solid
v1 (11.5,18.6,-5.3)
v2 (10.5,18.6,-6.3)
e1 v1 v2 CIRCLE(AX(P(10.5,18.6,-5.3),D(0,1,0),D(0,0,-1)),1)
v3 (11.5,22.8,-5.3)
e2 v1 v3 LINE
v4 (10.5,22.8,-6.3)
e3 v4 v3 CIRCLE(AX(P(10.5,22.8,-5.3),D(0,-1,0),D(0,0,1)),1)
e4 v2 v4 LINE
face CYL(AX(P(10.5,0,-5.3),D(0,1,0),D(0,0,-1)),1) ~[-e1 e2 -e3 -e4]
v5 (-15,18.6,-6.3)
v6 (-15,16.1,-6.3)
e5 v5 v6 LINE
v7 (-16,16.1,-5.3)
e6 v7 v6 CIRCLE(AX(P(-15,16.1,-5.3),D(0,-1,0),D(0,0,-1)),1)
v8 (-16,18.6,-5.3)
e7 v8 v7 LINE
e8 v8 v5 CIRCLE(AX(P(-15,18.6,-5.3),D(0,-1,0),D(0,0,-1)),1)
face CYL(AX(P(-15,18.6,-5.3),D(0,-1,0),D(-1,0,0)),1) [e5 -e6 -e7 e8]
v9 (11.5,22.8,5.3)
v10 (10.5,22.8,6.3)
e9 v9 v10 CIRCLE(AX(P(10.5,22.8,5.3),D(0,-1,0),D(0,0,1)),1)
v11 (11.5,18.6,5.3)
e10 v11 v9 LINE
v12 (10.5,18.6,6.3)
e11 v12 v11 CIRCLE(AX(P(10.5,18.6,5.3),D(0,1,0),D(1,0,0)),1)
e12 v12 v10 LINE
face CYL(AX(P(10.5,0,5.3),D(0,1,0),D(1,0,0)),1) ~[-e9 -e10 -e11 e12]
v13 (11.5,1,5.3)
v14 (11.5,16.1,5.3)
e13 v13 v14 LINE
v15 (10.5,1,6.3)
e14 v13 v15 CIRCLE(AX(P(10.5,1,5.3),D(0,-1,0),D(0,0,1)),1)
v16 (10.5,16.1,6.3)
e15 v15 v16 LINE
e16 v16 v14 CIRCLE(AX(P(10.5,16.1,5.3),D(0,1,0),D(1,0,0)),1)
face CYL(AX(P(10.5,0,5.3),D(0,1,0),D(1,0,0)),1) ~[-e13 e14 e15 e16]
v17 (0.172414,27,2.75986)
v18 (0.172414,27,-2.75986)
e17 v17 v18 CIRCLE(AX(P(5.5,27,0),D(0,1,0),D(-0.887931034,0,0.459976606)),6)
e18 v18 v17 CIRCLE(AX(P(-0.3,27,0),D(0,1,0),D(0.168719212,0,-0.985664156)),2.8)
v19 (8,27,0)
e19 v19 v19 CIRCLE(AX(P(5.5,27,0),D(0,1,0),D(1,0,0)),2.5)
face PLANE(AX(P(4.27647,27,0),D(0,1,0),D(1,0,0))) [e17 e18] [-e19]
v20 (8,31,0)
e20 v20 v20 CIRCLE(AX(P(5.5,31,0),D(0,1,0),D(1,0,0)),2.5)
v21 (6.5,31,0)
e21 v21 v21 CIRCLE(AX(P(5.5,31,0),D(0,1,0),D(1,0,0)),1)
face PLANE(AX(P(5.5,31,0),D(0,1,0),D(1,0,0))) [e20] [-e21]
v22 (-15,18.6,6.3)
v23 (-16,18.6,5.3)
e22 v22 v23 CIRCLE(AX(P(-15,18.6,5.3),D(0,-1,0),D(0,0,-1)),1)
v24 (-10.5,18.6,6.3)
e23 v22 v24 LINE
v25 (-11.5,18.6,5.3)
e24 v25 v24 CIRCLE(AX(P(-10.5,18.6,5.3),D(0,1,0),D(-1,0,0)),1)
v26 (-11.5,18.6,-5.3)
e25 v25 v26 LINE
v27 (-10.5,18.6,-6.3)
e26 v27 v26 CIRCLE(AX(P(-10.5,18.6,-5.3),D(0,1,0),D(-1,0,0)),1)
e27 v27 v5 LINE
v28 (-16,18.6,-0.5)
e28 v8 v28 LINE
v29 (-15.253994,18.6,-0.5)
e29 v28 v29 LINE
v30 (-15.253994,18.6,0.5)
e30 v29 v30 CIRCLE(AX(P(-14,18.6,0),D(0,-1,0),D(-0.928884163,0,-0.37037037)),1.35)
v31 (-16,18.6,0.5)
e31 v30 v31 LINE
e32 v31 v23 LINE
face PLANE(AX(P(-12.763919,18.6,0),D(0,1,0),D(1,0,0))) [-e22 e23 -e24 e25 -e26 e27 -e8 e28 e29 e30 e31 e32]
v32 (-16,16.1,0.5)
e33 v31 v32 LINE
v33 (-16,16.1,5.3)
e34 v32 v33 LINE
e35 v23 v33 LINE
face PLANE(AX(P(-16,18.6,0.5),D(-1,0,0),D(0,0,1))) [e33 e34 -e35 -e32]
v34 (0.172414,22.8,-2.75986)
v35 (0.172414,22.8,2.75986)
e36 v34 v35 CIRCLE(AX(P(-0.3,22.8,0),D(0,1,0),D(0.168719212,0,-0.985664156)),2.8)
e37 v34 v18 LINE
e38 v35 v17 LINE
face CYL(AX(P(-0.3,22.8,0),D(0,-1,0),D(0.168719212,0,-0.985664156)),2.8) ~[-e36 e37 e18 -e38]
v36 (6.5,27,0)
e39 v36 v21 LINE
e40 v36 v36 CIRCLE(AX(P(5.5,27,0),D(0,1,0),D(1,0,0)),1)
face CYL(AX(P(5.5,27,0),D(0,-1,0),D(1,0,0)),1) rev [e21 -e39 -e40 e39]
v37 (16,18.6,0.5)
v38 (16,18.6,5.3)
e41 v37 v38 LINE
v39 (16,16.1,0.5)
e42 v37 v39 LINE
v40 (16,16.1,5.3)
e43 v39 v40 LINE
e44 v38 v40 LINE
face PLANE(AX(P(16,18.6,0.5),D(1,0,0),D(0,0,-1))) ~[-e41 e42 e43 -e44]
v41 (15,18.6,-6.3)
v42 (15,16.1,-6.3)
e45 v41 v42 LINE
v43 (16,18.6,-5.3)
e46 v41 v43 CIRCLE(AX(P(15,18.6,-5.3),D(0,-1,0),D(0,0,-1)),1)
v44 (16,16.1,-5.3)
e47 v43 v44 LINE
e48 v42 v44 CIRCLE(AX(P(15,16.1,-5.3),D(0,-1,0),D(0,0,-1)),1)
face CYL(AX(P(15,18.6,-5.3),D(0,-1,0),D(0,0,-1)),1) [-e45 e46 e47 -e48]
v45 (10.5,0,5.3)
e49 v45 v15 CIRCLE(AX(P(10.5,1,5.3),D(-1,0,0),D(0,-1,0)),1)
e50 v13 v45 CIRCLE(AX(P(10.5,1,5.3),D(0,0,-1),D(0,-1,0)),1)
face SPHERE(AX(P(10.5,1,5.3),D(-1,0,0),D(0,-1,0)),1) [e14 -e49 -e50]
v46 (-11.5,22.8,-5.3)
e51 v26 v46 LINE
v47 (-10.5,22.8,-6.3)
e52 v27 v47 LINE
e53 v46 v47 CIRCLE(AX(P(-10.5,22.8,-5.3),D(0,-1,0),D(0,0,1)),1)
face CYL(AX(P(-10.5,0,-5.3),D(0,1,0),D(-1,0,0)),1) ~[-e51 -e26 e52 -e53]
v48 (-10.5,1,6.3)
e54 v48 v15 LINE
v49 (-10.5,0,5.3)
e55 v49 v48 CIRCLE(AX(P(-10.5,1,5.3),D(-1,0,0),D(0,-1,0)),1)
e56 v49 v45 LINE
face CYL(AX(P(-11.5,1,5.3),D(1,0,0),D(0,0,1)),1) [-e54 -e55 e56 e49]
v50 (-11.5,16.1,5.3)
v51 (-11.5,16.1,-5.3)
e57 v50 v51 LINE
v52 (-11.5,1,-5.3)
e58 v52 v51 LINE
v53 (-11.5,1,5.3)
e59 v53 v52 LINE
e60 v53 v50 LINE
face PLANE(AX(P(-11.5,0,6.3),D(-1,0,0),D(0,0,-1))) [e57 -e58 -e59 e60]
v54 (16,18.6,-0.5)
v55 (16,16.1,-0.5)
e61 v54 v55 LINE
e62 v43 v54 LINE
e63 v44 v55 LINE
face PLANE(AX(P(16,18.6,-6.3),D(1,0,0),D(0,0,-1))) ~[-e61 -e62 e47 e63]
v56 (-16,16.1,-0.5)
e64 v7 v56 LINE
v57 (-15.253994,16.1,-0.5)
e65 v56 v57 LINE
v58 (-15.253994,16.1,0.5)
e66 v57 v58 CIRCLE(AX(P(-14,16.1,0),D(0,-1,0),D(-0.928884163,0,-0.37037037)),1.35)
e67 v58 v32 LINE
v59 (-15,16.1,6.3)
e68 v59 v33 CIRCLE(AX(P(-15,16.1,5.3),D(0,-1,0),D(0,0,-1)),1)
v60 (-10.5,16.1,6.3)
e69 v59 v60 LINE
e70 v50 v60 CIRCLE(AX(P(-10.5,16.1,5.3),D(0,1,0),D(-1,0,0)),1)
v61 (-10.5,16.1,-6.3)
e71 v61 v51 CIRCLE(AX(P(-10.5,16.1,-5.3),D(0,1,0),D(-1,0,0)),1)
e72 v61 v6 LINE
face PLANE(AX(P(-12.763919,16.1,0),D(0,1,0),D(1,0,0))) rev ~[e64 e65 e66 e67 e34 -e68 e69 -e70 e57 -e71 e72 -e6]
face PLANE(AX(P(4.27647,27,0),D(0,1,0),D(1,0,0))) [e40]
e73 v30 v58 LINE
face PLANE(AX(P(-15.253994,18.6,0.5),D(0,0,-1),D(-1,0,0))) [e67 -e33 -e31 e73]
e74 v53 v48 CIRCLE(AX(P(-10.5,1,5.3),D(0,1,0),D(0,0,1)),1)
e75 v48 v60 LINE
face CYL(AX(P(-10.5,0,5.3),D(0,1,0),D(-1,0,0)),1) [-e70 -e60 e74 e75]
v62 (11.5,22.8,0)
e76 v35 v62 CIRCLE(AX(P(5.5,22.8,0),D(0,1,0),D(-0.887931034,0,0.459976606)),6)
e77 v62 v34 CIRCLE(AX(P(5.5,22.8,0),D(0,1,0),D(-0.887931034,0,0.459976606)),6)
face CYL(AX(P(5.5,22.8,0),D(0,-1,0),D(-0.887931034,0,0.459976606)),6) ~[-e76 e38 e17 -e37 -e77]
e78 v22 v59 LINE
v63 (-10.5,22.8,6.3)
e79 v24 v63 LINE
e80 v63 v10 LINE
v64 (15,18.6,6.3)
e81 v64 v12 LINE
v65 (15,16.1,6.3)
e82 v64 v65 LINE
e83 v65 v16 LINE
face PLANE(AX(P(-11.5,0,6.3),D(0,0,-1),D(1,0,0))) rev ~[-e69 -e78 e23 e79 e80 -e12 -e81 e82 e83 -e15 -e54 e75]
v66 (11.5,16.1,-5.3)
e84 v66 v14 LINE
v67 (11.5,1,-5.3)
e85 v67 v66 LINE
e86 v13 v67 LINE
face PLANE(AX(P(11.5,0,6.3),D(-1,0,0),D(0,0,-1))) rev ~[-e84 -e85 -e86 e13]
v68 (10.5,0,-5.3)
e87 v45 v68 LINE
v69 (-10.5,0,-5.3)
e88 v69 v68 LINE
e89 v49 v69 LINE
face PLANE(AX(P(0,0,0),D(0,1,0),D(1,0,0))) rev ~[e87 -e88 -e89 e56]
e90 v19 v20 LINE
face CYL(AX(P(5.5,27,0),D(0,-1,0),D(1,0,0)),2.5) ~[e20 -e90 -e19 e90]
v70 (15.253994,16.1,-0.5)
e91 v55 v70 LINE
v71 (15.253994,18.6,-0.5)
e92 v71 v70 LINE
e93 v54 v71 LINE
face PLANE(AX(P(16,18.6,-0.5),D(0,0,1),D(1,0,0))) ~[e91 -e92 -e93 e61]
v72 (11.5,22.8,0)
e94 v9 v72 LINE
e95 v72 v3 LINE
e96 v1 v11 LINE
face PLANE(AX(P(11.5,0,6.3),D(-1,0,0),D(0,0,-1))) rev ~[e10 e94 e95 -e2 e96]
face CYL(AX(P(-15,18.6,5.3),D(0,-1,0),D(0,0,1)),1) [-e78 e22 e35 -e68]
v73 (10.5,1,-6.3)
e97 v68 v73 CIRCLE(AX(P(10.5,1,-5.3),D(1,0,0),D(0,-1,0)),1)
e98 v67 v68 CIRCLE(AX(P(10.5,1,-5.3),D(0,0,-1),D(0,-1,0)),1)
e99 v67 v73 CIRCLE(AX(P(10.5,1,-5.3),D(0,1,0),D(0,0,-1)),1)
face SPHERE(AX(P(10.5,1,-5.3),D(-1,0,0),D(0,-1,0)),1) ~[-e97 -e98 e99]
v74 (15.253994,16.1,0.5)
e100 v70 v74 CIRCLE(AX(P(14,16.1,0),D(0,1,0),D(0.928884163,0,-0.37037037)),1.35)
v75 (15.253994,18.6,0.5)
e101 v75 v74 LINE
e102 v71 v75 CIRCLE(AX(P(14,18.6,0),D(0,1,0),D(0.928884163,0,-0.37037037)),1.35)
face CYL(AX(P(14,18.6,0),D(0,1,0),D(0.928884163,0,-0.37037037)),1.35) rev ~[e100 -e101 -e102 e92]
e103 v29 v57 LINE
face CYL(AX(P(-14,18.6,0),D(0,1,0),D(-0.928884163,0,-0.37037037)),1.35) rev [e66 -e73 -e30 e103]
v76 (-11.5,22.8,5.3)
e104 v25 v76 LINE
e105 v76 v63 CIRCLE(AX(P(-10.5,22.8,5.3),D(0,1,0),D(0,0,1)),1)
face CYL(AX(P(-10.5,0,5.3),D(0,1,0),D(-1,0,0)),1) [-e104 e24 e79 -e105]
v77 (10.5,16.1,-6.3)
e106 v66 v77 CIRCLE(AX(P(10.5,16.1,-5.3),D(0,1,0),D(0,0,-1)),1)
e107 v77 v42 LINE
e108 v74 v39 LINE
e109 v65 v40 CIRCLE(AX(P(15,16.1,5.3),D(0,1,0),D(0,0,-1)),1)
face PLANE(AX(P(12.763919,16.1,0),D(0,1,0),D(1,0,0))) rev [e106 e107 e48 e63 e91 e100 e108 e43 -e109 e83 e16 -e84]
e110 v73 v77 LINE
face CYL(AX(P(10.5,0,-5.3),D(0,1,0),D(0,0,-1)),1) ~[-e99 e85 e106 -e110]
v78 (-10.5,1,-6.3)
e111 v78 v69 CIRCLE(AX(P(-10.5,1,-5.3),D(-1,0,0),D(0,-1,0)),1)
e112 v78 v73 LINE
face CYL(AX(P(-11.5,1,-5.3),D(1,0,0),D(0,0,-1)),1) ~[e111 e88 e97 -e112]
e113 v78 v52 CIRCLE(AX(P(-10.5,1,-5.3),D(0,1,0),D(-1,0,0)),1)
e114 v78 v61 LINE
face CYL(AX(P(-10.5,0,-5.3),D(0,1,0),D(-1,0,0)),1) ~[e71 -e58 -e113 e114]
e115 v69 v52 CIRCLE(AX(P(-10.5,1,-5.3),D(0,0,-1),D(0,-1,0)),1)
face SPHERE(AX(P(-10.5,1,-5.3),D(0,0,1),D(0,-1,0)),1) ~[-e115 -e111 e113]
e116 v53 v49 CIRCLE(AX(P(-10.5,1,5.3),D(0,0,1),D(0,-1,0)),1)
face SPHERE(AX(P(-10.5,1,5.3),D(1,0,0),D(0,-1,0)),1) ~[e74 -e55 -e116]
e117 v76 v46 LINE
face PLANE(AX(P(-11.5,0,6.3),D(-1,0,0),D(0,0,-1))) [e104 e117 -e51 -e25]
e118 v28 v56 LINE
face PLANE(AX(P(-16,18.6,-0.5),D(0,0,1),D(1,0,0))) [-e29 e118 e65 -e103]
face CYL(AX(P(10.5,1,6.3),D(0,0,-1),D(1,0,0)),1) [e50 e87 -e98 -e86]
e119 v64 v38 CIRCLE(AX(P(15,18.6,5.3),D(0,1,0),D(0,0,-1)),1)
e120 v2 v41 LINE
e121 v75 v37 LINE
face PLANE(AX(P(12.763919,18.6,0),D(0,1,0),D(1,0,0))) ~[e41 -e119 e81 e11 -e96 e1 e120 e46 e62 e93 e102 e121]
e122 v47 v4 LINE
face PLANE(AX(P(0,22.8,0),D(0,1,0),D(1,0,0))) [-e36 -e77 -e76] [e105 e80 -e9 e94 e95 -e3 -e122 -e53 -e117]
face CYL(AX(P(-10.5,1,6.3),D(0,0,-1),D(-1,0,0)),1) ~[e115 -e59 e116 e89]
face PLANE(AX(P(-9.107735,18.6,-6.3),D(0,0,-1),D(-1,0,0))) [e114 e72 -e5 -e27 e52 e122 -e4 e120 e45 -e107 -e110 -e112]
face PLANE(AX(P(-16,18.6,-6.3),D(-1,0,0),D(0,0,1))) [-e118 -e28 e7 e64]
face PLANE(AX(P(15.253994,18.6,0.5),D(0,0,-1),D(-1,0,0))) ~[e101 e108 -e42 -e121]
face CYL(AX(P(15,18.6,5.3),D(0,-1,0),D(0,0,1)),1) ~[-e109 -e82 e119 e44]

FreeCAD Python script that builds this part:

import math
import FreeCAD as App
import Part
import Sketcher

V = App.Vector


def edges_at(feature, points):
    """Names of the edges that pass closest to the given points."""
    edges = feature.Shape.Edges
    near = lambda p: min(range(len(edges)), key=lambda i: edges[i].distToShape(Part.Vertex(*p))[0])
    return sorted({f"Edge{near(p) + 1}" for p in points})

doc = App.newDocument("Part")
body = doc.addObject("PartDesign::Body", "Body")

# Sketch on XZ plane
sketch1 = body.newObject("Sketcher::SketchObject", "Sketch")
sketch1.AttachmentSupport = (doc.getObject("XZ_Plane"), [""])
sketch1.MapMode = "FlatFace"
sketch1.addGeometry(Part.LineSegment(V(-12, -6, 0), V(-12, 6, 0)), False)
sketch1.addGeometry(Part.LineSegment(V(-12, 6, 0), V(12, 6, 0)), False)
sketch1.addGeometry(Part.LineSegment(V(12, 6, 0), V(12, -6, 0)), False)
sketch1.addGeometry(Part.LineSegment(V(12, -6, 0), V(-12, -6, 0)), False)
sketch1.addConstraint(Sketcher.Constraint("Coincident", 0, 2, 1, 1))
sketch1.addConstraint(Sketcher.Constraint("Coincident", 1, 2, 2, 1))
sketch1.addConstraint(Sketcher.Constraint("Coincident", 2, 2, 3, 1))
sketch1.addConstraint(Sketcher.Constraint("Coincident", 3, 2, 0, 1))
sketch1.addConstraint(Sketcher.Constraint("Vertical", 0))
sketch1.addConstraint(Sketcher.Constraint("Horizontal", 1))
sketch1.addConstraint(Sketcher.Constraint("Vertical", 2))
sketch1.addConstraint(Sketcher.Constraint("Horizontal", 3))
sketch1.addConstraint(Sketcher.Constraint("Symmetric", 0, 2, 2, 2, -1, 1))
sketch1.addConstraint(Sketcher.Constraint("DistanceX", 1, 1, 1, 2, 23.0))
sketch1.addConstraint(Sketcher.Constraint("DistanceY", 0, 1, 0, 2, 12.6))
pad1 = body.newObject("PartDesign::Pad", "Pad")
pad1.Profile = sketch1
pad1.Length = 22.8
pad1.Reversed = True

# Sketch on XZ plane
sketch2 = body.newObject("Sketcher::SketchObject", "Sketch001")
sketch2.AttachmentSupport = (doc.getObject("XZ_Plane"), [""])
sketch2.MapMode = "FlatFace"
sketch2.AttachmentOffset = App.Placement(V(0, 0, -22.8), App.Rotation())
sketch2.addGeometry(Part.ArcOfCircle(Part.Circle(V(5.5, 0, 0), V(0, 0, 1), 6), math.radians(-153), math.radians(153)), False)
sketch2.addGeometry(Part.ArcOfCircle(Part.Circle(V(-0.3, 0, 0), V(0, 0, 1), 2.8), math.radians(80), math.radians(280)), False)
sketch2.addConstraint(Sketcher.Constraint("Coincident", 0, 1, 1, 2))
sketch2.addConstraint(Sketcher.Constraint("Coincident", 1, 1, 0, 2))
sketch2.addConstraint(Sketcher.Constraint("Symmetric", 0, 1, 1, 1, -1))
sketch2.addConstraint(Sketcher.Constraint("Radius", 0, 6.0))
sketch2.addConstraint(Sketcher.Constraint("Radius", 1, 2.8))
sketch2.addConstraint(Sketcher.Constraint("DistanceX", -1, 1, 0, 3, 5.5))
sketch2.addConstraint(Sketcher.Constraint("DistanceX", 1, 3, -1, 1, 0.3))
pad2 = body.newObject("PartDesign::Pad", "Pad001")
pad2.Profile = sketch2
pad2.Length = 4.2
pad2.Reversed = True

# Sketch on XZ plane
sketch3 = body.newObject("Sketcher::SketchObject", "Sketch002")
sketch3.AttachmentSupport = (doc.getObject("XZ_Plane"), [""])
sketch3.MapMode = "FlatFace"
sketch3.AttachmentOffset = App.Placement(V(0, 0, -27), App.Rotation())
sketch3.addGeometry(Part.Circle(V(5.5, 0, 0), V(0, 0, 1), 2.5), False)
sketch3.addGeometry(Part.Circle(V(5.5, 0, 0), V(0, 0, 1), 1), False)
sketch3.addConstraint(Sketcher.Constraint("Coincident", 1, 3, 0, 3))
sketch3.addConstraint(Sketcher.Constraint("PointOnObject", 0, 3, -1))
sketch3.addConstraint(Sketcher.Constraint("Diameter", 0, 5.0))
sketch3.addConstraint(Sketcher.Constraint("Diameter", 1, 2.0))
sketch3.addConstraint(Sketcher.Constraint("DistanceX", -1, 1, 0, 3, 5.5))
pad3 = body.newObject("PartDesign::Pad", "Pad002")
pad3.Profile = sketch3
pad3.Length = 4
pad3.Reversed = True
doc.recompute()

fillet = body.newObject("PartDesign::Fillet", "Fillet")
fillet.Base = (pad3, edges_at(pad3, [
    (0, 0, 6.3),
    (-11.5, 0, 0),
    (0, 0, -6.3),
    (11.5, 0, 0),
    (11.5, 11.4, 6.3),
    (-11.5, 11.4, 6.3),
    (-11.5, 11.4, -6.3),
    (11.5, 11.4, -6.3),
]))
fillet.Radius = 1

# Sketch on XZ plane
sketch4 = body.newObject("Sketcher::SketchObject", "Sketch003")
sketch4.AttachmentSupport = (doc.getObject("XZ_Plane"), [""])
sketch4.MapMode = "FlatFace"
sketch4.AttachmentOffset = App.Placement(V(0, 0, -18.6), App.Rotation())
sketch4.addGeometry(Part.LineSegment(V(-9.1, -6.3, 0), V(-16, -6.3, 0)), False)
sketch4.addGeometry(Part.LineSegment(V(-16, -6.3, 0), V(-16, -0.5, 0)), False)
sketch4.addGeometry(Part.LineSegment(V(-16, -0.5, 0), V(-15.3, -0.5, 0)), False)
sketch4.addGeometry(Part.ArcOfCircle(Part.Circle(V(-14, 0, 0), V(0, 0, 1), 1.4), math.radians(-158), math.radians(158)), False)
sketch4.addGeometry(Part.LineSegment(V(-15.3, 0.5, 0), V(-16, 0.5, 0)), False)
sketch4.addGeometry(Part.LineSegment(V(-16, 0.5, 0), V(-16, 6.3, 0)), False)
sketch4.addGeometry(Part.LineSegment(V(-16, 6.3, 0), V(-9.1, 6.3, 0)), False)
sketch4.addGeometry(Part.LineSegment(V(-9.1, 6.3, 0), V(-9.1, -6.3, 0)), False)
sketch4.addConstraint(Sketcher.Constraint("Coincident", 0, 2, 1, 1))
sketch4.addConstraint(Sketcher.Constraint("Coincident", 1, 2, 2, 1))
sketch4.addConstraint(Sketcher.Constraint("Coincident", 2, 2, 3, 1))
sketch4.addConstraint(Sketcher.Constraint("Coincident", 3, 2, 4, 1))
sketch4.addConstraint(Sketcher.Constraint("Coincident", 4, 2, 5, 1))
sketch4.addConstraint(Sketcher.Constraint("Coincident", 5, 2, 6, 1))
sketch4.addConstraint(Sketcher.Constraint("Coincident", 6, 2, 7, 1))
sketch4.addConstraint(Sketcher.Constraint("Coincident", 7, 2, 0, 1))
sketch4.addConstraint(Sketcher.Constraint("Horizontal", 0))
sketch4.addConstraint(Sketcher.Constraint("Vertical", 1))
sketch4.addConstraint(Sketcher.Constraint("Horizontal", 2))
sketch4.addConstraint(Sketcher.Constraint("Horizontal", 4))
sketch4.addConstraint(Sketcher.Constraint("Vertical", 5))
sketch4.addConstraint(Sketcher.Constraint("Horizontal", 6))
sketch4.addConstraint(Sketcher.Constraint("Vertical", 7))
sketch4.addConstraint(Sketcher.Constraint("Symmetric", 2, 2, 3, 2, -1))
sketch4.addConstraint(Sketcher.Constraint("Symmetric", 0, 2, 5, 2, -1))
sketch4.addConstraint(Sketcher.Constraint("Radius", 3, 1.35))
sketch4.addConstraint(Sketcher.Constraint("DistanceY", 1, 1, 1, 2, 5.8))
sketch4.addConstraint(Sketcher.Constraint("DistanceY", 7, 2, 7, 1, 12.6))
sketch4.addConstraint(Sketcher.Constraint("DistanceX", 3, 3, -1, 1, 14.0))
sketch4.addConstraint(Sketcher.Constraint("DistanceX", 0, 2, -1, 1, 16.0))
sketch4.addConstraint(Sketcher.Constraint("DistanceX", 0, 2, 0, 1, 6.892265))
pad4 = body.newObject("PartDesign::Pad", "Pad003")
pad4.Profile = sketch4
pad4.Length = 2.5
doc.recompute()

fillet2 = body.newObject("PartDesign::Fillet", "Fillet001")
fillet2.Base = (pad4, edges_at(pad4, [(-16, 17.35, -6.3), (-16, 17.35, 6.3)]))
fillet2.Radius = 1
doc.recompute()

mirrored = body.newObject("PartDesign::Mirrored", "Mirrored")
mirrored.Originals = [pad4]
mirrored.MirrorPlane = (doc.getObject("YZ_Plane"), [""])
body.Tip = mirrored
doc.recompute()

fillet3 = body.newObject("PartDesign::Fillet", "Fillet002")
fillet3.Base = (mirrored, edges_at(mirrored, [(16, 17.35, -6.3), (16, 17.35, 6.3)]))
fillet3.Radius = 1

doc.recompute()
